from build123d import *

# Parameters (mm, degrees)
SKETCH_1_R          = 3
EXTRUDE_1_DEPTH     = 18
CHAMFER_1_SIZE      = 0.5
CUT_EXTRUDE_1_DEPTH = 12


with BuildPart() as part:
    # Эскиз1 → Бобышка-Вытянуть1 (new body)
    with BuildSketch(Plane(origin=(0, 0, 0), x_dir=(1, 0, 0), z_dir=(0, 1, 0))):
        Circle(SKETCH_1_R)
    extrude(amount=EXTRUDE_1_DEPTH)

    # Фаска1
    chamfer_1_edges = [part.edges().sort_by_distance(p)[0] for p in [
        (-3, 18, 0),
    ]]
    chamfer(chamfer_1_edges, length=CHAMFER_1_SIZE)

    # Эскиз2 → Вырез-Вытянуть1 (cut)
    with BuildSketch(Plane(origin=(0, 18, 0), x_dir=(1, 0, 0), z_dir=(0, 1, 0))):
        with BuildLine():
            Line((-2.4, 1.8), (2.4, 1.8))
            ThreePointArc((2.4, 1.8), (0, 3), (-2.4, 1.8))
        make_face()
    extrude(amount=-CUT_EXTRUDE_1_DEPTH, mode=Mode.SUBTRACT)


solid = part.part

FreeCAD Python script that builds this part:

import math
import FreeCAD as App
import Part
import Sketcher
from FreeCAD import Vector


def edges_at(feature, points):
    """Names of the edges that pass closest to the given points."""
    edges = feature.Shape.Edges
    near = lambda p: min(range(len(edges)), key=lambda i: edges[i].distToShape(Part.Vertex(*p))[0])
    return sorted({f"Edge{near(p) + 1}" for p in points})

doc = App.newDocument("Part")
params = doc.addObject("Spreadsheet::Sheet", "Params")
for row, (alias, value) in enumerate([
    ("sketch1_diameter", "6 mm"),
    ("pad1_length", "18 mm"),
    ("chamfer_size", "0.5 mm"),
    ("sketch2_radius", "3 mm"),
    ("sketch2_width", "4.8 mm"),
    ("pocket1_length", "12 mm"),
], start=1):
    params.set(f"A{row}", alias)
    params.set(f"B{row}", "=" + value)
    params.setAlias(f"B{row}", alias)

body = doc.addObject("PartDesign::Body", "Body")

# Sketch on XZ plane
sketch1 = body.newObject("Sketcher::SketchObject", "Sketch")
sketch1.AttachmentSupport = (doc.getObject("XZ_Plane"), [""])
sketch1.MapMode = "FlatFace"
sketch1.addGeometry(Part.Circle(Vector(0, 0, 0), Vector(0, 0, 1), 3), False)
sketch1.addConstraint([
    Sketcher.Constraint("Coincident", 0, 3, -1, 1),
    Sketcher.Constraint("Diameter", 0, 6.0),
])
sketch1.setExpression("Constraints[1]", "Params.sketch1_diameter")
pad1 = body.newObject("PartDesign::Pad", "Pad")
pad1.Profile = sketch1
pad1.setExpression("Length", "Params.pad1_length")
pad1.Reversed = True
doc.recompute()

chamfer = body.newObject("PartDesign::Chamfer", "Chamfer")
chamfer.Base = (pad1, edges_at(pad1, [(-3, 18, 0)]))
chamfer.setExpression("Size", "Params.chamfer_size")

# Sketch on XZ plane
sketch2 = body.newObject("Sketcher::SketchObject", "Sketch001")
sketch2.AttachmentSupport = (doc.getObject("XZ_Plane"), [""])
sketch2.MapMode = "FlatFace"
sketch2.AttachmentOffset = App.Placement(Vector(0, 0, -18), App.Rotation())
sketch2.addGeometry([
    Part.LineSegment(Vector(-2.4, -1.8, 0), Vector(2.4, -1.8, 0)),
    Part.ArcOfCircle(Part.Circle(Vector(0, 0, 0), Vector(0, 0, 1), 3), math.radians(-143), math.radians(-37)),
], False)
sketch2.addConstraint([
    Sketcher.Constraint("Coincident", 0, 1, 1, 1),
    Sketcher.Constraint("Coincident", 1, 2, 0, 2),
    Sketcher.Constraint("Horizontal", 0),
    Sketcher.Constraint("Coincident", 1, 3, -1, 1),
    Sketcher.Constraint("Radius", 1, 3.0),
    Sketcher.Constraint("DistanceX", 0, 1, 0, 2, 4.8),
])
sketch2.setExpression("Constraints[4]", "Params.sketch2_radius")
sketch2.setExpression("Constraints[5]", "Params.sketch2_width")
pocket1 = body.newObject("PartDesign::Pocket", "Pocket")
pocket1.Profile = sketch2
pocket1.setExpression("Length", "Params.pocket1_length")
pocket1.Reversed = True

doc.recompute()
